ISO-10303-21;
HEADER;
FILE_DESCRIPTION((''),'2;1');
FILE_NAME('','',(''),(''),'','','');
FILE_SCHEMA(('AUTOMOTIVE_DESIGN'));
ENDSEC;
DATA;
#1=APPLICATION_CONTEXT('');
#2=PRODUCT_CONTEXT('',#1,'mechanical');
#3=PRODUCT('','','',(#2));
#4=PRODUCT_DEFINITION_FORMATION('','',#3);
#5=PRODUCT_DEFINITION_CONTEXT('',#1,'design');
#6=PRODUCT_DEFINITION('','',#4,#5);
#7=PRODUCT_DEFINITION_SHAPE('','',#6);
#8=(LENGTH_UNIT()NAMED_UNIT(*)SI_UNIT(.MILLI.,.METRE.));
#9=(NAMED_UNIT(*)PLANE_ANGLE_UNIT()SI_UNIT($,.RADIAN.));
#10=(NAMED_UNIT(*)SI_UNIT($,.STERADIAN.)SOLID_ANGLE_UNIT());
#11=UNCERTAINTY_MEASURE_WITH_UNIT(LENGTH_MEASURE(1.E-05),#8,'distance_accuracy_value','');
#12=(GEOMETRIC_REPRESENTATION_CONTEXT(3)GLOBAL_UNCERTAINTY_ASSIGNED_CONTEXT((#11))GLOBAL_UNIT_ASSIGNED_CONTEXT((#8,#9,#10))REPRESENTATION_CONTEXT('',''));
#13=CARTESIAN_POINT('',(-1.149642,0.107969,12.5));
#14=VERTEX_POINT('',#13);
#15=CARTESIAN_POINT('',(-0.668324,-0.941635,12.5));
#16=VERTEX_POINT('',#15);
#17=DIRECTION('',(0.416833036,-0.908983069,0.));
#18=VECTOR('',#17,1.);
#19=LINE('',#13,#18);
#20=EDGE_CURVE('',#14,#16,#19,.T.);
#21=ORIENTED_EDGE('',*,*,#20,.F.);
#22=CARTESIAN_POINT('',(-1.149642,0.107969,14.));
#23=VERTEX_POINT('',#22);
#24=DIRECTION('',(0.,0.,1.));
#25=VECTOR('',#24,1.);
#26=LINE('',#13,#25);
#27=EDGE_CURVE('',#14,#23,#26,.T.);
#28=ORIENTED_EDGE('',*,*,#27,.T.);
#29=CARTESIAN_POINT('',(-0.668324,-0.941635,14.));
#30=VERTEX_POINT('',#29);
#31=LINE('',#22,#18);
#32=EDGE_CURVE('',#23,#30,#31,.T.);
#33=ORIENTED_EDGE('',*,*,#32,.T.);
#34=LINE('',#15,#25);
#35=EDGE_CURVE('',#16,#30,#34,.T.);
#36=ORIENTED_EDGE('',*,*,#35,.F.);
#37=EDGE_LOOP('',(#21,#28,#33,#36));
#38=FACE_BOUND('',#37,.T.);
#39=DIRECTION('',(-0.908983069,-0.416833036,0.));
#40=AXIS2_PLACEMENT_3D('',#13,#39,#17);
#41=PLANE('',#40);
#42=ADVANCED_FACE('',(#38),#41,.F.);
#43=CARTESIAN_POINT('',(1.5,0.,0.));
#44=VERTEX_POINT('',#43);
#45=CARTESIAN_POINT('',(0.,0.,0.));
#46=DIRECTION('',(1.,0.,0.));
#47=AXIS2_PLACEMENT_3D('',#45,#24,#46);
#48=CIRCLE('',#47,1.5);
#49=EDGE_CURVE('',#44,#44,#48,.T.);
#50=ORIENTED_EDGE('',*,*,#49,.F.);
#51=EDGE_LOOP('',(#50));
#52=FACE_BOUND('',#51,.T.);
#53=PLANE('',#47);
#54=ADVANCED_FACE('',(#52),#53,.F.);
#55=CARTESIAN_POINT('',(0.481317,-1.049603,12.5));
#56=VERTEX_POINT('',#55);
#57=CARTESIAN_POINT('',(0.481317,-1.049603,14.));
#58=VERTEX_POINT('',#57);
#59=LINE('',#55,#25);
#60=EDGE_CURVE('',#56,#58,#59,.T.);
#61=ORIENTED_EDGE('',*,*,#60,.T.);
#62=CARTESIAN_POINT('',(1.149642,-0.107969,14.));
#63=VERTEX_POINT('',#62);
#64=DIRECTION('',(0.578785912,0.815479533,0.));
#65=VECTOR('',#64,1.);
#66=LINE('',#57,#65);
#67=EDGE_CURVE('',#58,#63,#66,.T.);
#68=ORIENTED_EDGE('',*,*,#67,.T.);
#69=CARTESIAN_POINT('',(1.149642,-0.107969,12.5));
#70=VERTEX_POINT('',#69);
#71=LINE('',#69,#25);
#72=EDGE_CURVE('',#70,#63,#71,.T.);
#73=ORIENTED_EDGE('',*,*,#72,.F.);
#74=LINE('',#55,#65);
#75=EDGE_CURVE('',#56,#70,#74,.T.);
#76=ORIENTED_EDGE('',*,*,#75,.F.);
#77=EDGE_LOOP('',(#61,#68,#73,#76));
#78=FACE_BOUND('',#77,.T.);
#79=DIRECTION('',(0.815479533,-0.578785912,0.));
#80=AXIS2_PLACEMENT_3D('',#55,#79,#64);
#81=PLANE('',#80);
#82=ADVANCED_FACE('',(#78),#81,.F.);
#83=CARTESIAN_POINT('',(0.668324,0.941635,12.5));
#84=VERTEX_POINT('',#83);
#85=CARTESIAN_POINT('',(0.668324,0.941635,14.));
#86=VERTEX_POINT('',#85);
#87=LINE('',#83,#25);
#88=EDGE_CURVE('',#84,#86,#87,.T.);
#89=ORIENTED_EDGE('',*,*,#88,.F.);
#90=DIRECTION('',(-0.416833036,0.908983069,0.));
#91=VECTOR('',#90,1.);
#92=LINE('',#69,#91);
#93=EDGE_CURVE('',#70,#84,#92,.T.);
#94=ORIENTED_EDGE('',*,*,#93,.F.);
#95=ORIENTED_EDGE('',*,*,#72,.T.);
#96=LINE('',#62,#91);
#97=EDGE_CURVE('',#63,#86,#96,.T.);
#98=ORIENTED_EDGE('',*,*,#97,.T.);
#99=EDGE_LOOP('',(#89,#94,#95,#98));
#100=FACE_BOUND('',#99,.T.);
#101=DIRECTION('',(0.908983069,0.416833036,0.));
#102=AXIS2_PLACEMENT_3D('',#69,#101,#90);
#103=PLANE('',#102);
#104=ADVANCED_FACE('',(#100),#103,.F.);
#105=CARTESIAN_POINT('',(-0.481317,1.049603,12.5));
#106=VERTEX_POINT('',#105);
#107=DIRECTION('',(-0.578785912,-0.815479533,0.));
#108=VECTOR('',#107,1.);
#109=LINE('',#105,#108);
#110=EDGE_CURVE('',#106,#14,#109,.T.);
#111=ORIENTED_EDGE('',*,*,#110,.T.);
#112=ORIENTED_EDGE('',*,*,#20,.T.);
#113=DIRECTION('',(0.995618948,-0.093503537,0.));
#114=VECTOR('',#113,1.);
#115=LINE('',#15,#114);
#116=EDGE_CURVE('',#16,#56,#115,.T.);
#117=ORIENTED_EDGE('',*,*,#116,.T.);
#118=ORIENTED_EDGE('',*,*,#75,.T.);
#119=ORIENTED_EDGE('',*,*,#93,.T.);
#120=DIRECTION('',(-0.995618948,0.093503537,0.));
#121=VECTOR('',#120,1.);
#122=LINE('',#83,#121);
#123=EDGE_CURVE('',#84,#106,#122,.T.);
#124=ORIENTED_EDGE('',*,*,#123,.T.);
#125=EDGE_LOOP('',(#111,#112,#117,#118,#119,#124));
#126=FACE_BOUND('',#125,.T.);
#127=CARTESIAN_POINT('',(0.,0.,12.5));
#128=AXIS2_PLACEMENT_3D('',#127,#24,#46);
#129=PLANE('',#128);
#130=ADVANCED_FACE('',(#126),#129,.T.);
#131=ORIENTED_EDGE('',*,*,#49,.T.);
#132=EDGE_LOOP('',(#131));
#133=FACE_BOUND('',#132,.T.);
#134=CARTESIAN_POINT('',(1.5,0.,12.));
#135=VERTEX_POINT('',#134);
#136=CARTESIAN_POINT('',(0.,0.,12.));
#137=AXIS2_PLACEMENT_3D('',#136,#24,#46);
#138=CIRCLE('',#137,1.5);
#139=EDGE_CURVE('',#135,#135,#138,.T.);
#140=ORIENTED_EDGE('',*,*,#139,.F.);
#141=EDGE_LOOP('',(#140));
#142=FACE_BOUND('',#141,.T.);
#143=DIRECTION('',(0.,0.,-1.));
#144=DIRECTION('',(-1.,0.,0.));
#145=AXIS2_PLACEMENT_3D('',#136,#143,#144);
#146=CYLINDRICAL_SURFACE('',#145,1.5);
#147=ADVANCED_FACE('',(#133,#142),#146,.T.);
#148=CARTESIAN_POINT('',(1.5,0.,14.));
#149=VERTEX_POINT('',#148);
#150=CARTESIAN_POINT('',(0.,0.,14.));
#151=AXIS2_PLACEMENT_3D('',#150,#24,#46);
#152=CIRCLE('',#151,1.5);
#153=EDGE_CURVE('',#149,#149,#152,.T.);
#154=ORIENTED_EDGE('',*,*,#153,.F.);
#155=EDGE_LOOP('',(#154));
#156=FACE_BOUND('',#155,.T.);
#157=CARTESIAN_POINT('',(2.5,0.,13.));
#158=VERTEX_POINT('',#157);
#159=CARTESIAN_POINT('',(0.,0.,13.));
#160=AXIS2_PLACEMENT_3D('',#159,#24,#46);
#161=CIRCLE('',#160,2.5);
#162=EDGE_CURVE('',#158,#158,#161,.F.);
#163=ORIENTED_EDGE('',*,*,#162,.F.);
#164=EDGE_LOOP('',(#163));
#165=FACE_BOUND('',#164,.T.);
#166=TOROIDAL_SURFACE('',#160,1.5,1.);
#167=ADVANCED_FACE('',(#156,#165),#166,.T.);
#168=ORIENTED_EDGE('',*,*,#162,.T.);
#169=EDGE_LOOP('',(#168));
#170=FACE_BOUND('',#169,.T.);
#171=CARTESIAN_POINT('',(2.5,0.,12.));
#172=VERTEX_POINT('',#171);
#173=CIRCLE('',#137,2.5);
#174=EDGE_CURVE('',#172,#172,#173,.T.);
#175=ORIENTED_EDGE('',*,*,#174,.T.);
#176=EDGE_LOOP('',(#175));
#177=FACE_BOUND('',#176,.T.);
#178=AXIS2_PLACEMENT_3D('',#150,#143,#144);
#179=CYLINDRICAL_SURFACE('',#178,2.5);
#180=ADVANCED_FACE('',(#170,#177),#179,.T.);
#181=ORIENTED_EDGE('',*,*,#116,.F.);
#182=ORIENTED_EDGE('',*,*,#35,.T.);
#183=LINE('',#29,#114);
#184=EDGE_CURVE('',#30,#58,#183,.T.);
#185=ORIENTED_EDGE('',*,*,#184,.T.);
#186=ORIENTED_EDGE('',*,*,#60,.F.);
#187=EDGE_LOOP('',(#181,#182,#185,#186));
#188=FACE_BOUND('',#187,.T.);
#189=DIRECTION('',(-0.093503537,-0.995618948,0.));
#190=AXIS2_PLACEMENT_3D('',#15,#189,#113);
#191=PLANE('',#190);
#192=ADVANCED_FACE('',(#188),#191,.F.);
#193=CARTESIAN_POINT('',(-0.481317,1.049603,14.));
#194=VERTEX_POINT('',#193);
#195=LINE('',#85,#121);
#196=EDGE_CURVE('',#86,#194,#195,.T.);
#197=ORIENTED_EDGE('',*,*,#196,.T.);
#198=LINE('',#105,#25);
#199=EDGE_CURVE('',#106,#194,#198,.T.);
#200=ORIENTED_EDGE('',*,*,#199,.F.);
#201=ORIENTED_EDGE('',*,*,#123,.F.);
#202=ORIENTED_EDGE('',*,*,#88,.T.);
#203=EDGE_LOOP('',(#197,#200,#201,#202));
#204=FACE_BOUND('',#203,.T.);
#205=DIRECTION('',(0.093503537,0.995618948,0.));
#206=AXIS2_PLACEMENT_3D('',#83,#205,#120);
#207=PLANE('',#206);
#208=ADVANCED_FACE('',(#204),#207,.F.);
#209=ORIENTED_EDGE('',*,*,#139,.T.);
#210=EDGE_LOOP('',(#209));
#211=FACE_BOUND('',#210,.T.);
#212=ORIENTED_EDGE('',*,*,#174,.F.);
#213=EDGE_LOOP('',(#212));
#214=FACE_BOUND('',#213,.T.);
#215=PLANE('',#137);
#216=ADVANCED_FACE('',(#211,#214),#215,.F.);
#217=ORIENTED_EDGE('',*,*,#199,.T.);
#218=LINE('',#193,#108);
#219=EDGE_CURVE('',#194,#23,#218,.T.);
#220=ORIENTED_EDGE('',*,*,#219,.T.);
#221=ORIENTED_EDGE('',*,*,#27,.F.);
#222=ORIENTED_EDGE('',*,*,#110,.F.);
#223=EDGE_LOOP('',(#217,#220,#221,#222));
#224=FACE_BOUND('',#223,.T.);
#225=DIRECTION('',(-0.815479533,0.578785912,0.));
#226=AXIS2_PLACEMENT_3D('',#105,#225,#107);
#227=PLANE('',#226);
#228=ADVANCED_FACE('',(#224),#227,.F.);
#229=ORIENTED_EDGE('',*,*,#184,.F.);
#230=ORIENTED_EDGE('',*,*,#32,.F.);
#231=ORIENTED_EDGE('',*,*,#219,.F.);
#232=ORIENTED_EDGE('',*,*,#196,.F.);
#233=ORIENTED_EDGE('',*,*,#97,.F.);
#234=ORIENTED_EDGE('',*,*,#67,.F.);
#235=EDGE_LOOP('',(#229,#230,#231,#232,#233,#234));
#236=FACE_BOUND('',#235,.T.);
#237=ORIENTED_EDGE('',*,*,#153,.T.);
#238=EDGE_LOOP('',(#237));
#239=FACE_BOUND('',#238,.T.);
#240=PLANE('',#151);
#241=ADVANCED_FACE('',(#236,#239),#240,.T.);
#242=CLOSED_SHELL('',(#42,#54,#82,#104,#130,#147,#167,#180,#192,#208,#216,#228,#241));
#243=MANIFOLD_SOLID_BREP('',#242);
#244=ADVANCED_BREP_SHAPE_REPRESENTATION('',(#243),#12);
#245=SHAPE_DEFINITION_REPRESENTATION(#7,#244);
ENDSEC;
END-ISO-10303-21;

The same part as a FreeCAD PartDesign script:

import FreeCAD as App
import Part
import Sketcher
from FreeCAD import Vector


def edges_at(feature, points):
    """Names of the edges that pass closest to the given points."""
    edges = feature.Shape.Edges
    near = lambda p: min(range(len(edges)), key=lambda i: edges[i].distToShape(Part.Vertex(*p))[0])
    return sorted({f"Edge{near(p) + 1}" for p in points})

doc = App.newDocument("Part")
body = doc.addObject("PartDesign::Body", "Body")

# Sketch on XY plane
sketch1 = doc.addObject("Sketcher::SketchObject", "Sketch")
body.addObject(sketch1)
sketch1.AttachmentSupport = (doc.XY_Plane, [""])
sketch1.MapMode = "FlatFace"
sketch1.addGeometry(Part.Circle(Vector(0, 0, 0), Vector(0, 0, 1), 1.5), False)
sketch1.addConstraint([
    Sketcher.Constraint("Coincident", 0, 3, -1, 1),
    Sketcher.Constraint("Diameter", 0, 3.0),
])
pad1 = doc.addObject("PartDesign::Pad", "Pad")
body.addObject(pad1)
pad1.Profile = sketch1
pad1.Length = 12

# Sketch on XY plane
sketch2 = doc.addObject("Sketcher::SketchObject", "Sketch001")
body.addObject(sketch2)
sketch2.AttachmentSupport = (doc.XY_Plane, [""])
sketch2.MapMode = "FlatFace"
sketch2.AttachmentOffset = App.Placement(Vector(0, 0, 12), App.Rotation())
sketch2.addGeometry(Part.Circle(Vector(0, 0, 0), Vector(0, 0, 1), 2.5), False)
sketch2.addConstraint([
    Sketcher.Constraint("Coincident", 0, 3, -1, 1),
    Sketcher.Constraint("Diameter", 0, 5.0),
])
pad2 = doc.addObject("PartDesign::Pad", "Pad001")
body.addObject(pad2)
pad2.Profile = sketch2
pad2.Length = 2

# Sketch on XY plane
sketch3 = doc.addObject("Sketcher::SketchObject", "Sketch002")
body.addObject(sketch3)
sketch3.AttachmentSupport = (doc.XY_Plane, [""])
sketch3.MapMode = "FlatFace"
sketch3.AttachmentOffset = App.Placement(Vector(0, 0, 14), App.Rotation())
sketch3.addGeometry([
    Part.LineSegment(Vector(1.149642, -0.107969, 0), Vector(0.668324, 0.941635, 0)),  # 0
    Part.LineSegment(Vector(0.668324, 0.941635, 0), Vector(-0.481317, 1.049603, 0)),  # 1
    Part.LineSegment(Vector(-0.481317, 1.049603, 0), Vector(-1.149642, 0.107969, 0)),  # 2
    Part.LineSegment(Vector(-1.149642, 0.107969, 0), Vector(-0.668324, -0.941635, 0)),  # 3
    Part.LineSegment(Vector(-0.668324, -0.941635, 0), Vector(0.481317, -1.049603, 0)),  # 4
    Part.LineSegment(Vector(0.481317, -1.049603, 0), Vector(1.149642, -0.107969, 0)),  # 5
], False)
sketch3.addConstraint([
    Sketcher.Constraint("Coincident", 0, 2, 1, 1),
    Sketcher.Constraint("Coincident", 1, 2, 2, 1),
    Sketcher.Constraint("Coincident", 2, 2, 3, 1),
    Sketcher.Constraint("Coincident", 3, 2, 4, 1),
    Sketcher.Constraint("Coincident", 4, 2, 5, 1),
    Sketcher.Constraint("Coincident", 5, 2, 0, 1),
    Sketcher.Constraint("Symmetric", 0, 2, 3, 2, -1, 1),
    Sketcher.Constraint("Symmetric", 1, 2, 4, 2, -1, 1),
    Sketcher.Constraint("Symmetric", 2, 2, 5, 2, -1, 1),
    Sketcher.Constraint("Equal", 0, 1),
    Sketcher.Constraint("Equal", 1, 2),
    Sketcher.Constraint("Distance", 0, 1.154701),
    Sketcher.Constraint("DistanceX", 2, 2, -1, 1, 1.149642),
    Sketcher.Constraint("DistanceY", -1, 1, 2, 2, 0.107969),
    Sketcher.Constraint("DistanceX", 1, 2, 0, 2, 1.149642),
])
pocket1 = doc.addObject("PartDesign::Pocket", "Pocket")
body.addObject(pocket1)
pocket1.Profile = sketch3
pocket1.Length = 1.5
doc.recompute()

fillet = doc.addObject("PartDesign::Fillet", "Fillet")
body.addObject(fillet)
fillet.Base = (pocket1, edges_at(pocket1, [(-2.5, 0, 14)]))
fillet.Radius = 1

doc.recompute()
